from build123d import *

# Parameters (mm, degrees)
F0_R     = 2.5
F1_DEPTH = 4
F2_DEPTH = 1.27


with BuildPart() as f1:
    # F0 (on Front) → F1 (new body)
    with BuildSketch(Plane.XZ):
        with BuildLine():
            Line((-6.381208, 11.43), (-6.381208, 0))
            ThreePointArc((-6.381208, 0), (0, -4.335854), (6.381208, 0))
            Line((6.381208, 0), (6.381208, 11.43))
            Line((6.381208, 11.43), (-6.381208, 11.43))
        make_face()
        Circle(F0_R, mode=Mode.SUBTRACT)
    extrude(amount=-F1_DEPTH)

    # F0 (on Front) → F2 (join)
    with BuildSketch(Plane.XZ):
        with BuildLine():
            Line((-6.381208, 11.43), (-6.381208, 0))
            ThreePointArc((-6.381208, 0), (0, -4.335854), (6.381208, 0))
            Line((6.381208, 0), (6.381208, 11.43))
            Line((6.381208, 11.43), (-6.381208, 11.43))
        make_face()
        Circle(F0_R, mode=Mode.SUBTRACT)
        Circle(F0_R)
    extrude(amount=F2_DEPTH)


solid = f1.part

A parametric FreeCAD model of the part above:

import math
import FreeCAD as App
import Part
import Sketcher
from FreeCAD import Vector
Q = App.Units.Quantity

doc = App.newDocument("Part")
body = doc.addObject("PartDesign::Body", "Body")

sketch1 = doc.addObject("Sketcher::SketchObject", "Sketch")
body.addObject(sketch1)
sketch1.AttachmentSupport = (doc.XZ_Plane, [""])
sketch1.MapMode = "FlatFace"
sketch1.addGeometry([
    Part.LineSegment(Vector(-6.381208, 11.43, 0), Vector(-6.381208, 0, 0)),
    Part.ArcOfCircle(Part.Circle(Vector(0, 2.527782, 0), Vector(0, 0, 1), 6.863636), math.radians(-158.390043), math.radians(-21.609957)),
    Part.LineSegment(Vector(6.381208, 0, 0), Vector(6.381208, 11.43, 0)),
    Part.LineSegment(Vector(6.381208, 11.43, 0), Vector(-6.381208, 11.43, 0)),
    Part.Circle(Vector(0, 0, 0), Vector(0, 0, 1), 2.5),
], False)
sketch1.addConstraint([
    Sketcher.Constraint("Coincident", 0, 2, 1, 1),
    Sketcher.Constraint("Coincident", 1, 2, 2, 1),
    Sketcher.Constraint("Coincident", 2, 2, 3, 1),
    Sketcher.Constraint("Coincident", 3, 2, 0, 1),
    Sketcher.Constraint("Vertical", 0),
    Sketcher.Constraint("Vertical", 2),
    Sketcher.Constraint("Horizontal", 3),
    Sketcher.Constraint("Coincident", 4, 3, -1, 1),
    Sketcher.Constraint("Symmetric", 0, 2, 1, 2, -1, 1),
    Sketcher.Constraint("PointOnObject", 1, 3, -2),
    Sketcher.Constraint("Diameter", 4, Q("5 mm")),
    Sketcher.Constraint("DistanceY", 0, 2, 0, 1, Q("11.43 mm")),
    Sketcher.Constraint("Radius", 1, Q("6.863636 mm")),
    Sketcher.Constraint("DistanceX", 3, 2, 3, 1, Q("12.762416 mm")),
])
pad1 = doc.addObject("PartDesign::Pad", "Pad")
body.addObject(pad1)
pad1.Profile = sketch1
pad1.Length = 4
pad1.Reversed = True

sketch2 = doc.addObject("Sketcher::SketchObject", "Sketch001")
body.addObject(sketch2)
sketch2.AttachmentSupport = (doc.XZ_Plane, [""])
sketch2.MapMode = "FlatFace"
sketch2.addGeometry([
    Part.LineSegment(Vector(-6.381208, 11.43, 0), Vector(-6.381208, 0, 0)),
    Part.ArcOfCircle(Part.Circle(Vector(0, 2.527782, 0), Vector(0, 0, 1), 6.863636), math.radians(-158.390043), math.radians(-21.609957)),
    Part.LineSegment(Vector(6.381208, 0, 0), Vector(6.381208, 11.43, 0)),
    Part.LineSegment(Vector(6.381208, 11.43, 0), Vector(-6.381208, 11.43, 0)),
], False)
sketch2.addConstraint([
    Sketcher.Constraint("Coincident", 0, 2, 1, 1),
    Sketcher.Constraint("Coincident", 1, 2, 2, 1),
    Sketcher.Constraint("Coincident", 2, 2, 3, 1),
    Sketcher.Constraint("Coincident", 3, 2, 0, 1),
    Sketcher.Constraint("Vertical", 0),
    Sketcher.Constraint("Vertical", 2),
    Sketcher.Constraint("Horizontal", 3),
    Sketcher.Constraint("Symmetric", 0, 2, 1, 2, -1, 1),
    Sketcher.Constraint("PointOnObject", 1, 3, -2),
    Sketcher.Constraint("DistanceY", 0, 2, 0, 1, Q("11.43 mm")),
    Sketcher.Constraint("Radius", 1, Q("6.863636 mm")),
    Sketcher.Constraint("DistanceX", 3, 2, 3, 1, Q("12.762416 mm")),
])
pad2 = doc.addObject("PartDesign::Pad", "Pad001")
body.addObject(pad2)
pad2.Profile = sketch2
pad2.Length = 1.27

doc.recompute()
